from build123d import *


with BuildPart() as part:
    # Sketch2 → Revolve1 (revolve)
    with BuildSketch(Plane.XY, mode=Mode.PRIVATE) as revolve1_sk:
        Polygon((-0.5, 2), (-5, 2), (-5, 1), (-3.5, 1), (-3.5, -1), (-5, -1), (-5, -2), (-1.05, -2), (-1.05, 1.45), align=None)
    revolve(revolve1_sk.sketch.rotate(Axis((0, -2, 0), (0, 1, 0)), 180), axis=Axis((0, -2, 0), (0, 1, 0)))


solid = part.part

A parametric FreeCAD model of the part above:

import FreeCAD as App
import Part
import Sketcher
Q = App.Units.Quantity


def add_polygon(sketch, points):
    """Adds a closed chain of lines whose ends are joined by coincident constraints."""
    first, n = sketch.GeometryCount, len(points)
    for a, b in zip(points, points[1:] + points[:1]):
        sketch.addGeometry(Part.LineSegment(App.Vector(*a, 0), App.Vector(*b, 0)), False)
    for i in range(n):
        sketch.addConstraint(Sketcher.Constraint("Coincident", first + i, 2, first + (i + 1) % n, 1))

doc = App.newDocument("Part")
body = doc.addObject("PartDesign::Body", "Body")

# Sketch on XY plane
sketch1 = body.newObject("Sketcher::SketchObject", "Sketch")
sketch1.AttachmentSupport = (doc.getObject("XY_Plane"), [""])
sketch1.MapMode = "FlatFace"
add_polygon(sketch1, [(-0.5, 2), (-5, 2), (-5, 1), (-3.5, 1), (-3.5, -1), (-5, -1), (-5, -2), (-1.1, -2), (-1.1, 1.4)])  # lines 0-8
sketch1.addConstraint([
    Sketcher.Constraint("Horizontal", 0),
    Sketcher.Constraint("Vertical", 1),
    Sketcher.Constraint("Horizontal", 2),
    Sketcher.Constraint("Vertical", 3),
    Sketcher.Constraint("Horizontal", 4),
    Sketcher.Constraint("Vertical", 5),
    Sketcher.Constraint("Horizontal", 6),
    Sketcher.Constraint("Vertical", 7),
    Sketcher.Constraint("Symmetric", 1, 2, 4, 2, -1),
    Sketcher.Constraint("Equal", 1, 5),
    Sketcher.Constraint("DistanceY", 1, 2, 1, 1, Q("1 mm")),
    Sketcher.Constraint("DistanceY", 3, 2, 3, 1, Q("2 mm")),
    Sketcher.Constraint("Angle", 8, Q("45 deg")),
    Sketcher.Constraint("DistanceX", 0, 2, 0, 1, Q("4.5 mm")),
    Sketcher.Constraint("DistanceX", 2, 1, 2, 2, Q("1.5 mm")),
    Sketcher.Constraint("DistanceX", 0, 2, -1, 1, Q("5 mm")),
    Sketcher.Constraint("DistanceX", 6, 1, 6, 2, Q("3.95 mm")),
])
revolution = body.newObject("PartDesign::Revolution", "Revolution")
revolution.Profile = sketch1
revolution.ReferenceAxis = (sketch1, ["V_Axis"])
revolution.Angle = 360

doc.recompute()
